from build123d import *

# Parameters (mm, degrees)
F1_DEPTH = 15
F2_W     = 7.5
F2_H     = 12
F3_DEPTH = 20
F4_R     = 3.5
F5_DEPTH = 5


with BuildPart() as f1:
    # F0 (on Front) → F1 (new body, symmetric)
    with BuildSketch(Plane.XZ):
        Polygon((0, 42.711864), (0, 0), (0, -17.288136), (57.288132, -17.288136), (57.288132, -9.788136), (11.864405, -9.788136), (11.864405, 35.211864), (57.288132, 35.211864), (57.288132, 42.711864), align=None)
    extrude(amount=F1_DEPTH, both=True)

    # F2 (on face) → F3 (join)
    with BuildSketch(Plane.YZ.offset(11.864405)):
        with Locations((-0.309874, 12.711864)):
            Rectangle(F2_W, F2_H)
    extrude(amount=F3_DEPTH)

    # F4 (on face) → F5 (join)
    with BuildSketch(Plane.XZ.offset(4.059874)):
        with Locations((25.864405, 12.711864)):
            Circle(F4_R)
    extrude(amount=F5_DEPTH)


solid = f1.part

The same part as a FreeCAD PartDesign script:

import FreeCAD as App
import Part
import Sketcher
from FreeCAD import Vector

doc = App.newDocument("Part")
body = doc.addObject("PartDesign::Body", "Body")

# Sketch on XZ plane
sketch1 = doc.addObject("Sketcher::SketchObject", "Sketch")
body.addObject(sketch1)
sketch1.AttachmentSupport = (doc.XZ_Plane, [""])
sketch1.MapMode = "FlatFace"
sketch1.addGeometry([
    Part.LineSegment(Vector(0, 43, 0), Vector(0, -17, 0)),  # 0
    Part.LineSegment(Vector(0, -17, 0), Vector(57, -17, 0)),  # 1
    Part.LineSegment(Vector(57, -17, 0), Vector(57, -10, 0)),  # 2
    Part.LineSegment(Vector(57, -10, 0), Vector(12, -10, 0)),  # 3
    Part.LineSegment(Vector(12, -10, 0), Vector(12, 35, 0)),  # 4
    Part.LineSegment(Vector(12, 35, 0), Vector(57, 35, 0)),  # 5
    Part.LineSegment(Vector(57, 35, 0), Vector(57, 43, 0)),  # 6
    Part.LineSegment(Vector(57, 43, 0), Vector(0, 43, 0)),  # 7
], False)
sketch1.addConstraint([
    Sketcher.Constraint("Coincident", 0, 2, 1, 1),
    Sketcher.Constraint("Coincident", 1, 2, 2, 1),
    Sketcher.Constraint("Coincident", 2, 2, 3, 1),
    Sketcher.Constraint("Coincident", 3, 2, 4, 1),
    Sketcher.Constraint("Coincident", 4, 2, 5, 1),
    Sketcher.Constraint("Coincident", 5, 2, 6, 1),
    Sketcher.Constraint("Coincident", 6, 2, 7, 1),
    Sketcher.Constraint("Coincident", 7, 2, 0, 1),
    Sketcher.Constraint("Vertical", 0),
    Sketcher.Constraint("Horizontal", 1),
    Sketcher.Constraint("Vertical", 2),
    Sketcher.Constraint("Horizontal", 3),
    Sketcher.Constraint("Vertical", 4),
    Sketcher.Constraint("Horizontal", 5),
    Sketcher.Constraint("Vertical", 6),
    Sketcher.Constraint("Horizontal", 7),
    Sketcher.Constraint("PointOnObject", 0, 2, -2),
    Sketcher.Constraint("Vertical", 2, 2, 5, 2),
    Sketcher.Constraint("Equal", 2, 6),
    Sketcher.Constraint("DistanceY", 0, 2, 0, 1, 60.0),
    Sketcher.Constraint("DistanceY", 4, 1, 4, 2, 45.0),
    Sketcher.Constraint("DistanceX", 1, 1, 1, 2, 57.288132),
    Sketcher.Constraint("DistanceX", 3, 2, 3, 1, 45.423727),
    Sketcher.Constraint("DistanceY", 0, 2, -1, 1, 17.288136),
])
pad1 = doc.addObject("PartDesign::Pad", "Pad")
body.addObject(pad1)
pad1.Profile = sketch1
pad1.Length = 30
pad1.Midplane = True

# Sketch on YZ plane
sketch2 = doc.addObject("Sketcher::SketchObject", "Sketch001")
body.addObject(sketch2)
sketch2.AttachmentSupport = (doc.YZ_Plane, [""])
sketch2.MapMode = "FlatFace"
sketch2.AttachmentOffset = App.Placement(Vector(0, 0, 11.864405), App.Rotation())
sketch2.addGeometry([
    Part.LineSegment(Vector(-4, 19, 0), Vector(-4, 7, 0)),
    Part.LineSegment(Vector(-4, 7, 0), Vector(3, 7, 0)),
    Part.LineSegment(Vector(3, 7, 0), Vector(3, 19, 0)),
    Part.LineSegment(Vector(3, 19, 0), Vector(-4, 19, 0)),
], False)
sketch2.addConstraint([
    Sketcher.Constraint("Coincident", 0, 2, 1, 1),
    Sketcher.Constraint("Coincident", 1, 2, 2, 1),
    Sketcher.Constraint("Coincident", 2, 2, 3, 1),
    Sketcher.Constraint("Coincident", 3, 2, 0, 1),
    Sketcher.Constraint("Vertical", 0),
    Sketcher.Constraint("Horizontal", 1),
    Sketcher.Constraint("Vertical", 2),
    Sketcher.Constraint("Horizontal", 3),
    Sketcher.Constraint("DistanceY", 0, 2, 0, 1, 12.0),
    Sketcher.Constraint("DistanceX", 1, 1, 1, 2, 7.5),
    Sketcher.Constraint("DistanceX", 0, 2, -1, 1, 4.059874),
    Sketcher.Constraint("DistanceY", -1, 1, 0, 2, 6.711864),
])
pad2 = doc.addObject("PartDesign::Pad", "Pad001")
body.addObject(pad2)
pad2.Profile = sketch2
pad2.Length = 20

# Sketch on XZ plane
sketch3 = doc.addObject("Sketcher::SketchObject", "Sketch002")
body.addObject(sketch3)
sketch3.AttachmentSupport = (doc.XZ_Plane, [""])
sketch3.MapMode = "FlatFace"
sketch3.AttachmentOffset = App.Placement(Vector(0, 0, 4.059874), App.Rotation())
sketch3.addGeometry(Part.Circle(Vector(25.9, 12.7, 0), Vector(0, 0, 1), 3.5), False)
sketch3.addConstraint([
    Sketcher.Constraint("Diameter", 0, 7.0),
    Sketcher.Constraint("DistanceX", -1, 1, 0, 3, 25.864405),
    Sketcher.Constraint("DistanceY", -1, 1, 0, 3, 12.711864),
])
pad3 = doc.addObject("PartDesign::Pad", "Pad002")
body.addObject(pad3)
pad3.Profile = sketch3
pad3.Length = 5

doc.recompute()
